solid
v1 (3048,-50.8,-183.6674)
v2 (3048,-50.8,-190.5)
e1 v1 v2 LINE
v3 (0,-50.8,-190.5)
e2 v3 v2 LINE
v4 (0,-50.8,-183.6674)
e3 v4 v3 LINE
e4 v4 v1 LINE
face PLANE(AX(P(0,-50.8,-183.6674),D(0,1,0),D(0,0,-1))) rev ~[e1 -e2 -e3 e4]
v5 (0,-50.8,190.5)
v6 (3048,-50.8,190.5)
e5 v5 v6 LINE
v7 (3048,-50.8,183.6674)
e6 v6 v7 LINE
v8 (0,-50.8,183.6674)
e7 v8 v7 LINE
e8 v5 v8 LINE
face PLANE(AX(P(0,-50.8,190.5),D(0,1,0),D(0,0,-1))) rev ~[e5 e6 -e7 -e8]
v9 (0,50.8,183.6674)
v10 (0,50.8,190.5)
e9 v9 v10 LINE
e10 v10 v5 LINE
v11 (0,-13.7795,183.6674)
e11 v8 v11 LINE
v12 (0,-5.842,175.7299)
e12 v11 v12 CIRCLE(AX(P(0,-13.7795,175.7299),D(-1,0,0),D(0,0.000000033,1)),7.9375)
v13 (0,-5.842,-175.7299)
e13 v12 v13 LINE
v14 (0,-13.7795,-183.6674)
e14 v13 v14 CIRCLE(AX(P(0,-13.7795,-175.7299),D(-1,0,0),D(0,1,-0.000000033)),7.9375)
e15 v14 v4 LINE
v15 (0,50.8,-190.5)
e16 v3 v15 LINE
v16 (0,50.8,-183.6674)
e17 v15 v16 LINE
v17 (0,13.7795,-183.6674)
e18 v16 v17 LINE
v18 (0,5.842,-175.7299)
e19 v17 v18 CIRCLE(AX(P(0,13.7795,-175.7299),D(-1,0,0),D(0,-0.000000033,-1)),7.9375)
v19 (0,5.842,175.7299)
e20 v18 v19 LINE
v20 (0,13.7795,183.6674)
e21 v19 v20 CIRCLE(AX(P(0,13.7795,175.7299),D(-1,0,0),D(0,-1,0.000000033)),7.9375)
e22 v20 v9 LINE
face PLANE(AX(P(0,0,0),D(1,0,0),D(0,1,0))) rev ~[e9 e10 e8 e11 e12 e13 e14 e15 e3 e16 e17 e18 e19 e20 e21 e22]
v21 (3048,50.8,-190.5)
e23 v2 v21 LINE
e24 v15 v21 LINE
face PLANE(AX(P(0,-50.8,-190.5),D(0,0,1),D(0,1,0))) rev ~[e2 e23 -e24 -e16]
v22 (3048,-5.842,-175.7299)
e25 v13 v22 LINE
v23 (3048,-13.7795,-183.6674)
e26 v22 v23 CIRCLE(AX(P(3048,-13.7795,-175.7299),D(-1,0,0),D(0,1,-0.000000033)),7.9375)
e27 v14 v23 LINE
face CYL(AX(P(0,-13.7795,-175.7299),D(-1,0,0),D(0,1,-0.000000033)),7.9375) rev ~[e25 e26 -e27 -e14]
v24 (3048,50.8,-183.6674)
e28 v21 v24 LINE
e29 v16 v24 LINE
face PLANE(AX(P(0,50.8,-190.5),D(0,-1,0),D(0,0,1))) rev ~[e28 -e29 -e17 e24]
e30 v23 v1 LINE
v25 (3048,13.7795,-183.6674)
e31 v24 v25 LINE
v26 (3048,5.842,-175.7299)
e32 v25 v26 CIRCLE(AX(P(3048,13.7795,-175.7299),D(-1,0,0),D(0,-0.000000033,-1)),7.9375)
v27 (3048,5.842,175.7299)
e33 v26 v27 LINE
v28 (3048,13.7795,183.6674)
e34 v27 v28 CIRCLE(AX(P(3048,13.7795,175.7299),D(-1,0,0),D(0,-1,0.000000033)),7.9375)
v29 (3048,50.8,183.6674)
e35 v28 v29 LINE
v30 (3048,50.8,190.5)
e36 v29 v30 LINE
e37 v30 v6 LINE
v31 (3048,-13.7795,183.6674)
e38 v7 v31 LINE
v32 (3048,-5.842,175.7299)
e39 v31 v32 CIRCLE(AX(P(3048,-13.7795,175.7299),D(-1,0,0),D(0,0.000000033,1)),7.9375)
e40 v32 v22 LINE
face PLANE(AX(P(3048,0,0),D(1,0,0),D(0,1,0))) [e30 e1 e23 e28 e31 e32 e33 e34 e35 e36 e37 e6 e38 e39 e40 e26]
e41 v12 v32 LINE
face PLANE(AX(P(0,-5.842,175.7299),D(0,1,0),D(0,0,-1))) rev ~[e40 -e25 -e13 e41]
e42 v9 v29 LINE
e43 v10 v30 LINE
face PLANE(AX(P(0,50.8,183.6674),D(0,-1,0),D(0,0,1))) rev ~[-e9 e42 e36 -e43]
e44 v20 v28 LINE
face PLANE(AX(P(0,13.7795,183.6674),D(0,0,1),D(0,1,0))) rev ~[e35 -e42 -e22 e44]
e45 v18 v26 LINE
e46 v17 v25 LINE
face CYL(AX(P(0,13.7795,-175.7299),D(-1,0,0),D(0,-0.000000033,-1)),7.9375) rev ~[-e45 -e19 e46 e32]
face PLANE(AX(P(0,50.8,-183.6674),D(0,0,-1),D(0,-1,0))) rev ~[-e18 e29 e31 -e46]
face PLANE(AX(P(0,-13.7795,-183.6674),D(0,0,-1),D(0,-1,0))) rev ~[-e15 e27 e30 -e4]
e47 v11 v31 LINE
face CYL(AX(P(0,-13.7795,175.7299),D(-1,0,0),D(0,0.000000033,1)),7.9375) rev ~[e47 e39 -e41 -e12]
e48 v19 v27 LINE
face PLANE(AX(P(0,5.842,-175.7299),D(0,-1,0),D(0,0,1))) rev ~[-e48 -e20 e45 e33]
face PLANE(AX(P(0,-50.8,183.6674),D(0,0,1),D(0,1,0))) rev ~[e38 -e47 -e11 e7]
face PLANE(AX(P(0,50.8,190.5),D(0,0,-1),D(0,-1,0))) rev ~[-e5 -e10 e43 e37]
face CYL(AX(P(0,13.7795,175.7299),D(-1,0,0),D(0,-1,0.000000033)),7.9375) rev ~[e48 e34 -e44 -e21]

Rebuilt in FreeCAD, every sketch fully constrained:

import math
import FreeCAD as App
import Part
import Sketcher

V = App.Vector
Q = App.Units.Quantity

doc = App.newDocument("Part")
params = doc.addObject("Spreadsheet::Sheet", "Params")
for row, (alias, value) in enumerate([
    ("sketch1_width", "4 in"),
    ("sketch1_radius", "0.3125 in"),
    ("sketch1_height", "13.837 in"),
    ("pad1_length", "120 in"),
], start=1):
    params.set(f"A{row}", alias)
    params.set(f"B{row}", "=" + value)
    params.setAlias(f"B{row}", alias)

body = doc.addObject("PartDesign::Body", "Body")

sketch1 = body.newObject("Sketcher::SketchObject", "Sketch")
sketch1.AttachmentSupport = (doc.getObject("YZ_Plane"), [""])
sketch1.MapMode = "FlatFace"
sketch1.addGeometry(Part.LineSegment(V(-6, 176, 0), V(-6, -176, 0)), False)
sketch1.addGeometry(Part.ArcOfCircle(Part.Circle(V(-14, -176, 0), V(0, 0, 1), 8), math.radians(-90), math.radians(0)), False)
sketch1.addGeometry(Part.LineSegment(V(-14, -184, 0), V(-51, -184, 0)), False)
sketch1.addGeometry(Part.LineSegment(V(-51, -184, 0), V(-51, -190, 0)), False)
sketch1.addGeometry(Part.LineSegment(V(-51, -190, 0), V(51, -190, 0)), False)
sketch1.addGeometry(Part.LineSegment(V(51, -190, 0), V(51, -184, 0)), False)
sketch1.addGeometry(Part.LineSegment(V(51, -184, 0), V(14, -184, 0)), False)
sketch1.addGeometry(Part.ArcOfCircle(Part.Circle(V(14, -176, 0), V(0, 0, 1), 8), math.radians(-180), math.radians(-90)), False)
sketch1.addGeometry(Part.LineSegment(V(6, -176, 0), V(6, 176, 0)), False)
sketch1.addGeometry(Part.ArcOfCircle(Part.Circle(V(14, 176, 0), V(0, 0, 1), 8), math.radians(90), math.radians(180)), False)
sketch1.addGeometry(Part.LineSegment(V(14, 184, 0), V(51, 184, 0)), False)
sketch1.addGeometry(Part.LineSegment(V(51, 184, 0), V(51, 190, 0)), False)
sketch1.addGeometry(Part.LineSegment(V(51, 190, 0), V(-51, 190, 0)), False)
sketch1.addGeometry(Part.LineSegment(V(-51, 190, 0), V(-51, 184, 0)), False)
sketch1.addGeometry(Part.LineSegment(V(-51, 184, 0), V(-14, 184, 0)), False)
sketch1.addGeometry(Part.ArcOfCircle(Part.Circle(V(-14, 176, 0), V(0, 0, 1), 8), math.radians(0), math.radians(90)), False)
sketch1.addConstraint(Sketcher.Constraint("Tangent", 0, 2, 1, 2))
sketch1.addConstraint(Sketcher.Constraint("Tangent", 1, 1, 2, 1))
sketch1.addConstraint(Sketcher.Constraint("Coincident", 2, 2, 3, 1))
sketch1.addConstraint(Sketcher.Constraint("Coincident", 3, 2, 4, 1))
sketch1.addConstraint(Sketcher.Constraint("Coincident", 4, 2, 5, 1))
sketch1.addConstraint(Sketcher.Constraint("Coincident", 5, 2, 6, 1))
sketch1.addConstraint(Sketcher.Constraint("Tangent", 6, 2, 7, 2))
sketch1.addConstraint(Sketcher.Constraint("Tangent", 7, 1, 8, 1))
sketch1.addConstraint(Sketcher.Constraint("Tangent", 8, 2, 9, 2))
sketch1.addConstraint(Sketcher.Constraint("Tangent", 9, 1, 10, 1))
sketch1.addConstraint(Sketcher.Constraint("Coincident", 10, 2, 11, 1))
sketch1.addConstraint(Sketcher.Constraint("Coincident", 11, 2, 12, 1))
sketch1.addConstraint(Sketcher.Constraint("Coincident", 12, 2, 13, 1))
sketch1.addConstraint(Sketcher.Constraint("Coincident", 13, 2, 14, 1))
sketch1.addConstraint(Sketcher.Constraint("Tangent", 14, 2, 15, 2))
sketch1.addConstraint(Sketcher.Constraint("Tangent", 15, 1, 0, 1))
sketch1.addConstraint(Sketcher.Constraint("Vertical", 0))
sketch1.addConstraint(Sketcher.Constraint("Horizontal", 2))
sketch1.addConstraint(Sketcher.Constraint("Vertical", 3))
sketch1.addConstraint(Sketcher.Constraint("Horizontal", 4))
sketch1.addConstraint(Sketcher.Constraint("Vertical", 5))
sketch1.addConstraint(Sketcher.Constraint("Horizontal", 6))
sketch1.addConstraint(Sketcher.Constraint("Vertical", 8))
sketch1.addConstraint(Sketcher.Constraint("Horizontal", 10))
sketch1.addConstraint(Sketcher.Constraint("Vertical", 11))
sketch1.addConstraint(Sketcher.Constraint("Horizontal", 12))
sketch1.addConstraint(Sketcher.Constraint("Vertical", 13))
sketch1.addConstraint(Sketcher.Constraint("Horizontal", 14))
sketch1.addConstraint(Sketcher.Constraint("Equal", 1, 7))
sketch1.addConstraint(Sketcher.Constraint("Equal", 7, 9))
sketch1.addConstraint(Sketcher.Constraint("Equal", 9, 15))
sketch1.addConstraint(Sketcher.Constraint("Symmetric", 1, 3, 9, 3, -1, 1))
sketch1.addConstraint(Sketcher.Constraint("Symmetric", 3, 2, 11, 2, -1, 1))
sketch1.addConstraint(Sketcher.Constraint("Symmetric", 5, 2, 13, 2, -1, 1))
sketch1.addConstraint(Sketcher.Constraint("Symmetric", 2, 2, 5, 2, -2))
sketch1.addConstraint(Sketcher.Constraint("DistanceX", 4, 1, 4, 2, Q("4 in")))
sketch1.addConstraint(Sketcher.Constraint("Radius", 1, Q("0.3125 in")))
sketch1.addConstraint(Sketcher.Constraint("DistanceY", 3, 2, -1, 1, Q("7.5 in")))
sketch1.addConstraint(Sketcher.Constraint("DistanceY", 0, 2, 0, 1, Q("13.837 in")))
sketch1.addConstraint(Sketcher.Constraint("DistanceX", 0, 2, -1, 1, Q("0.23 in")))
sketch1.setExpression("Constraints[35]", "Params.sketch1_width")
sketch1.setExpression("Constraints[36]", "Params.sketch1_radius")
sketch1.setExpression("Constraints[38]", "Params.sketch1_height")
pad1 = body.newObject("PartDesign::Pad", "Pad")
pad1.Profile = sketch1
pad1.setExpression("Length", "Params.pad1_length")

doc.recompute()
